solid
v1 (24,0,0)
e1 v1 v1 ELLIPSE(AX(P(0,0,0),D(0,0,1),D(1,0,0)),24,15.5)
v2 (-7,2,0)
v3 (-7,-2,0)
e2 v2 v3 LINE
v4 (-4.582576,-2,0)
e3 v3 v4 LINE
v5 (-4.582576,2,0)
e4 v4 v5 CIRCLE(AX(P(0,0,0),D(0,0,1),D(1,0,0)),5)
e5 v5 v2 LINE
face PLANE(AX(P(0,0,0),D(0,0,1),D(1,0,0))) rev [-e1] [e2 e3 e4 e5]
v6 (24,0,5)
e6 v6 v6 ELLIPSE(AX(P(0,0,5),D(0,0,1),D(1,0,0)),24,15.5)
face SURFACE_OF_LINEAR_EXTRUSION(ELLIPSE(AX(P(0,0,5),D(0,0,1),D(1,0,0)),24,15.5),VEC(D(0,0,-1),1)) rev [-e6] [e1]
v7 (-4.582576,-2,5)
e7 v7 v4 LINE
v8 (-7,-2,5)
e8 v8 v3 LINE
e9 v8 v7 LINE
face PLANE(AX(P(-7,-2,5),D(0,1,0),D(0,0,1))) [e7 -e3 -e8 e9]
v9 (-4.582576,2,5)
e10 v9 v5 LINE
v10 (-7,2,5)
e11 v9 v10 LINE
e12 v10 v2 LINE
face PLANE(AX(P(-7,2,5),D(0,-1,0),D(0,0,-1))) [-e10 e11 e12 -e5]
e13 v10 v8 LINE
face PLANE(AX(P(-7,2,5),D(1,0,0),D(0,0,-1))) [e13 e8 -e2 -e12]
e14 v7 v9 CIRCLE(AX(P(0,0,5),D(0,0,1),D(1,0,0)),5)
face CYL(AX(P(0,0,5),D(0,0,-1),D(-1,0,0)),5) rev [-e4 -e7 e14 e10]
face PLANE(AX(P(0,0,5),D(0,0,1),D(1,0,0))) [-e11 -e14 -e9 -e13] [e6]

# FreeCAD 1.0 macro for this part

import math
import FreeCAD as App
import Part
import Sketcher

doc = App.newDocument("Part")
body = doc.addObject("PartDesign::Body", "Body")

# Sketch on XY plane
sketch1 = body.newObject("Sketcher::SketchObject", "Sketch")
sketch1.AttachmentSupport = (doc.getObject("XY_Plane"), [""])
sketch1.MapMode = "FlatFace"
sketch1.addGeometry([
    Part.Ellipse(App.Vector(24, 0, 0), App.Vector(0, 15.5, 0), App.Vector(0, 0, 0)),  # 0
    Part.LineSegment(App.Vector(-7, -2, 0), App.Vector(-7, 2, 0)),  # 1
    Part.LineSegment(App.Vector(-7, 2, 0), App.Vector(-4.582576, 2, 0)),  # 2
    Part.ArcOfCircle(Part.Circle(App.Vector(0, 0, 0), App.Vector(0, 0, 1), 5), math.radians(-156.421822), math.radians(156.421822)),  # 3
    Part.LineSegment(App.Vector(-4.582576, -2, 0), App.Vector(-7, -2, 0)),  # 4
], False)
sketch1.addConstraint([
    Sketcher.Constraint("Block", 0),
    Sketcher.Constraint("Coincident", 1, 2, 2, 1),
    Sketcher.Constraint("Coincident", 2, 2, 3, 2),
    Sketcher.Constraint("Coincident", 3, 1, 4, 1),
    Sketcher.Constraint("Coincident", 4, 2, 1, 1),
    Sketcher.Constraint("Vertical", 1),
    Sketcher.Constraint("Horizontal", 2),
    Sketcher.Constraint("Horizontal", 4),
    Sketcher.Constraint("Coincident", 3, 3, -1, 1),
    Sketcher.Constraint("Vertical", 2, 2, 3, 1),
    Sketcher.Constraint("Radius", 3, 5.0),
    Sketcher.Constraint("DistanceY", 1, 1, 1, 2, 4.0),
    Sketcher.Constraint("DistanceX", 1, 2, -1, 1, 7.0),
])
pad1 = body.newObject("PartDesign::Pad", "Pad")
pad1.Profile = sketch1
pad1.Length = 5

doc.recompute()
